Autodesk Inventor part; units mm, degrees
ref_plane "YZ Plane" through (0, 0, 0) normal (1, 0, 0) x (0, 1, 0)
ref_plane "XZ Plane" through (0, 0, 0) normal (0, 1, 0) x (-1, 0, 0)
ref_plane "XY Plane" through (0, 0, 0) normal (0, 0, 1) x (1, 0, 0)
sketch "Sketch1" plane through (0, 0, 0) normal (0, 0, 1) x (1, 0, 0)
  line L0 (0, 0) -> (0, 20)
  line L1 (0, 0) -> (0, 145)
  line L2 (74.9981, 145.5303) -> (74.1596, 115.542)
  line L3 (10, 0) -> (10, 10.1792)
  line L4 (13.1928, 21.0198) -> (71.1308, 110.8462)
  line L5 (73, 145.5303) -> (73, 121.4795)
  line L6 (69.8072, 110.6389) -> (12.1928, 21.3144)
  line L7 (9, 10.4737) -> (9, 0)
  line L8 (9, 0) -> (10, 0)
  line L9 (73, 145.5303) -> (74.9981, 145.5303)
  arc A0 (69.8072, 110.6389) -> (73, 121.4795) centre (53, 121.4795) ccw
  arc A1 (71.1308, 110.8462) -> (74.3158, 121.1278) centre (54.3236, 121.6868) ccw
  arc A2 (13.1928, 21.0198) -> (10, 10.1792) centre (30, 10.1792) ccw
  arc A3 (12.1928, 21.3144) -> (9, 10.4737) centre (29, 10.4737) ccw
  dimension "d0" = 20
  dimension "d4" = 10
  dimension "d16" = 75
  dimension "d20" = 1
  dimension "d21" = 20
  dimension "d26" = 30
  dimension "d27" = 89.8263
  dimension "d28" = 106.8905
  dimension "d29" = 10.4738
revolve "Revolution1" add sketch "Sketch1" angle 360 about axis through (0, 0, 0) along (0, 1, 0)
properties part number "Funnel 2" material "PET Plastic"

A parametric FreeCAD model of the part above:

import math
import FreeCAD as App
import Part
import Sketcher

doc = App.newDocument("Part")
body = doc.addObject("PartDesign::Body", "Body")

# Sketch on XY plane
sketch1 = body.newObject("Sketcher::SketchObject", "Sketch")
sketch1.AttachmentSupport = (doc.getObject("XY_Plane"), [""])
sketch1.MapMode = "FlatFace"
sketch1.addGeometry(Part.LineSegment(App.Vector(74.315784, 121.1278, 0), App.Vector(74.9981, 145.5303, 0)), False)
sketch1.addGeometry(Part.LineSegment(App.Vector(74.9981, 145.5303, 0), App.Vector(73, 145.5303, 0)), False)
sketch1.addGeometry(Part.LineSegment(App.Vector(73, 145.5303, 0), App.Vector(73, 121.4795, 0)), False)
sketch1.addGeometry(Part.ArcOfCircle(Part.Circle(App.Vector(53, 121.4795, 0), App.Vector(0, 0, 1), 20.000015), math.radians(-32.82191), math.radians(0)), False)
sketch1.addGeometry(Part.LineSegment(App.Vector(69.8072, 110.6389, 0), App.Vector(12.1928, 21.3144, 0)), False)
sketch1.addGeometry(Part.ArcOfCircle(Part.Circle(App.Vector(29, 10.4737, 0), App.Vector(0, 0, 1), 20.000069), math.radians(147.177849), math.radians(180)), False)
sketch1.addGeometry(Part.LineSegment(App.Vector(9, 10.4737, 0), App.Vector(9, 0, 0)), False)
sketch1.addGeometry(Part.LineSegment(App.Vector(9, 0, 0), App.Vector(10, 0, 0)), False)
sketch1.addGeometry(Part.LineSegment(App.Vector(10, 0, 0), App.Vector(10, 10.1792, 0)), False)
sketch1.addGeometry(Part.ArcOfCircle(Part.Circle(App.Vector(30, 10.1792, 0), App.Vector(0, 0, 1), 20.000015), math.radians(147.17809), math.radians(180)), False)
sketch1.addGeometry(Part.LineSegment(App.Vector(13.1928, 21.0198, 0), App.Vector(71.1308, 110.8462, 0)), False)
sketch1.addGeometry(Part.ArcOfCircle(Part.Circle(App.Vector(54.3236, 121.6868, 0), App.Vector(0, 0, 1), 20.000015), math.radians(-32.82191), math.radians(-1.601625)), False)
sketch1.addConstraint(Sketcher.Constraint("Coincident", 0, 2, 1, 1))
sketch1.addConstraint(Sketcher.Constraint("Coincident", 1, 2, 2, 1))
sketch1.addConstraint(Sketcher.Constraint("Tangent", 2, 2, 3, 2))
sketch1.addConstraint(Sketcher.Constraint("Tangent", 3, 1, 4, 1))
sketch1.addConstraint(Sketcher.Constraint("Tangent", 4, 2, 5, 1))
sketch1.addConstraint(Sketcher.Constraint("Tangent", 5, 2, 6, 1))
sketch1.addConstraint(Sketcher.Constraint("Coincident", 6, 2, 7, 1))
sketch1.addConstraint(Sketcher.Constraint("Coincident", 7, 2, 8, 1))
sketch1.addConstraint(Sketcher.Constraint("Tangent", 8, 2, 9, 2))
sketch1.addConstraint(Sketcher.Constraint("Tangent", 9, 1, 10, 1))
sketch1.addConstraint(Sketcher.Constraint("Tangent", 10, 2, 11, 1))
sketch1.addConstraint(Sketcher.Constraint("Tangent", 11, 2, 0, 1))
sketch1.addConstraint(Sketcher.Constraint("Horizontal", 1))
sketch1.addConstraint(Sketcher.Constraint("Vertical", 2))
sketch1.addConstraint(Sketcher.Constraint("Vertical", 6))
sketch1.addConstraint(Sketcher.Constraint("Horizontal", 7))
sketch1.addConstraint(Sketcher.Constraint("Vertical", 8))
sketch1.addConstraint(Sketcher.Constraint("Equal", 3, 5))
sketch1.addConstraint(Sketcher.Constraint("Equal", 5, 9))
sketch1.addConstraint(Sketcher.Constraint("Equal", 9, 11))
sketch1.addConstraint(Sketcher.Constraint("PointOnObject", 6, 2, -1))
sketch1.addConstraint(Sketcher.Constraint("Parallel", 4, 10))
sketch1.addConstraint(Sketcher.Constraint("Radius", 3, 20.0))
sketch1.addConstraint(Sketcher.Constraint("DistanceX", 7, 1, 7, 2, 1.0))
sketch1.addConstraint(Sketcher.Constraint("DistanceX", -1, 1, 9, 3, 30.0))
sketch1.addConstraint(Sketcher.Constraint("DistanceY", 6, 2, 6, 1, 10.4737))
sketch1.addConstraint(Sketcher.Constraint("DistanceX", -1, 1, 3, 3, 53.0))
sketch1.addConstraint(Sketcher.Constraint("Distance", 10, 106.8906))
sketch1.addConstraint(Sketcher.Constraint("DistanceX", 1, 2, 1, 1, 1.998))
sketch1.addConstraint(Sketcher.Constraint("Distance", 0, 24.412))
sketch1.addConstraint(Sketcher.Constraint("DistanceY", 2, 2, 2, 1, 24.0508))
sketch1.addConstraint(Sketcher.Constraint("DistanceY", 8, 1, 8, 2, 10.1792))
revolution = body.newObject("PartDesign::Revolution", "Revolution")
revolution.Profile = sketch1
revolution.ReferenceAxis = (sketch1, ["V_Axis"])
revolution.Angle = 360

doc.recompute()
